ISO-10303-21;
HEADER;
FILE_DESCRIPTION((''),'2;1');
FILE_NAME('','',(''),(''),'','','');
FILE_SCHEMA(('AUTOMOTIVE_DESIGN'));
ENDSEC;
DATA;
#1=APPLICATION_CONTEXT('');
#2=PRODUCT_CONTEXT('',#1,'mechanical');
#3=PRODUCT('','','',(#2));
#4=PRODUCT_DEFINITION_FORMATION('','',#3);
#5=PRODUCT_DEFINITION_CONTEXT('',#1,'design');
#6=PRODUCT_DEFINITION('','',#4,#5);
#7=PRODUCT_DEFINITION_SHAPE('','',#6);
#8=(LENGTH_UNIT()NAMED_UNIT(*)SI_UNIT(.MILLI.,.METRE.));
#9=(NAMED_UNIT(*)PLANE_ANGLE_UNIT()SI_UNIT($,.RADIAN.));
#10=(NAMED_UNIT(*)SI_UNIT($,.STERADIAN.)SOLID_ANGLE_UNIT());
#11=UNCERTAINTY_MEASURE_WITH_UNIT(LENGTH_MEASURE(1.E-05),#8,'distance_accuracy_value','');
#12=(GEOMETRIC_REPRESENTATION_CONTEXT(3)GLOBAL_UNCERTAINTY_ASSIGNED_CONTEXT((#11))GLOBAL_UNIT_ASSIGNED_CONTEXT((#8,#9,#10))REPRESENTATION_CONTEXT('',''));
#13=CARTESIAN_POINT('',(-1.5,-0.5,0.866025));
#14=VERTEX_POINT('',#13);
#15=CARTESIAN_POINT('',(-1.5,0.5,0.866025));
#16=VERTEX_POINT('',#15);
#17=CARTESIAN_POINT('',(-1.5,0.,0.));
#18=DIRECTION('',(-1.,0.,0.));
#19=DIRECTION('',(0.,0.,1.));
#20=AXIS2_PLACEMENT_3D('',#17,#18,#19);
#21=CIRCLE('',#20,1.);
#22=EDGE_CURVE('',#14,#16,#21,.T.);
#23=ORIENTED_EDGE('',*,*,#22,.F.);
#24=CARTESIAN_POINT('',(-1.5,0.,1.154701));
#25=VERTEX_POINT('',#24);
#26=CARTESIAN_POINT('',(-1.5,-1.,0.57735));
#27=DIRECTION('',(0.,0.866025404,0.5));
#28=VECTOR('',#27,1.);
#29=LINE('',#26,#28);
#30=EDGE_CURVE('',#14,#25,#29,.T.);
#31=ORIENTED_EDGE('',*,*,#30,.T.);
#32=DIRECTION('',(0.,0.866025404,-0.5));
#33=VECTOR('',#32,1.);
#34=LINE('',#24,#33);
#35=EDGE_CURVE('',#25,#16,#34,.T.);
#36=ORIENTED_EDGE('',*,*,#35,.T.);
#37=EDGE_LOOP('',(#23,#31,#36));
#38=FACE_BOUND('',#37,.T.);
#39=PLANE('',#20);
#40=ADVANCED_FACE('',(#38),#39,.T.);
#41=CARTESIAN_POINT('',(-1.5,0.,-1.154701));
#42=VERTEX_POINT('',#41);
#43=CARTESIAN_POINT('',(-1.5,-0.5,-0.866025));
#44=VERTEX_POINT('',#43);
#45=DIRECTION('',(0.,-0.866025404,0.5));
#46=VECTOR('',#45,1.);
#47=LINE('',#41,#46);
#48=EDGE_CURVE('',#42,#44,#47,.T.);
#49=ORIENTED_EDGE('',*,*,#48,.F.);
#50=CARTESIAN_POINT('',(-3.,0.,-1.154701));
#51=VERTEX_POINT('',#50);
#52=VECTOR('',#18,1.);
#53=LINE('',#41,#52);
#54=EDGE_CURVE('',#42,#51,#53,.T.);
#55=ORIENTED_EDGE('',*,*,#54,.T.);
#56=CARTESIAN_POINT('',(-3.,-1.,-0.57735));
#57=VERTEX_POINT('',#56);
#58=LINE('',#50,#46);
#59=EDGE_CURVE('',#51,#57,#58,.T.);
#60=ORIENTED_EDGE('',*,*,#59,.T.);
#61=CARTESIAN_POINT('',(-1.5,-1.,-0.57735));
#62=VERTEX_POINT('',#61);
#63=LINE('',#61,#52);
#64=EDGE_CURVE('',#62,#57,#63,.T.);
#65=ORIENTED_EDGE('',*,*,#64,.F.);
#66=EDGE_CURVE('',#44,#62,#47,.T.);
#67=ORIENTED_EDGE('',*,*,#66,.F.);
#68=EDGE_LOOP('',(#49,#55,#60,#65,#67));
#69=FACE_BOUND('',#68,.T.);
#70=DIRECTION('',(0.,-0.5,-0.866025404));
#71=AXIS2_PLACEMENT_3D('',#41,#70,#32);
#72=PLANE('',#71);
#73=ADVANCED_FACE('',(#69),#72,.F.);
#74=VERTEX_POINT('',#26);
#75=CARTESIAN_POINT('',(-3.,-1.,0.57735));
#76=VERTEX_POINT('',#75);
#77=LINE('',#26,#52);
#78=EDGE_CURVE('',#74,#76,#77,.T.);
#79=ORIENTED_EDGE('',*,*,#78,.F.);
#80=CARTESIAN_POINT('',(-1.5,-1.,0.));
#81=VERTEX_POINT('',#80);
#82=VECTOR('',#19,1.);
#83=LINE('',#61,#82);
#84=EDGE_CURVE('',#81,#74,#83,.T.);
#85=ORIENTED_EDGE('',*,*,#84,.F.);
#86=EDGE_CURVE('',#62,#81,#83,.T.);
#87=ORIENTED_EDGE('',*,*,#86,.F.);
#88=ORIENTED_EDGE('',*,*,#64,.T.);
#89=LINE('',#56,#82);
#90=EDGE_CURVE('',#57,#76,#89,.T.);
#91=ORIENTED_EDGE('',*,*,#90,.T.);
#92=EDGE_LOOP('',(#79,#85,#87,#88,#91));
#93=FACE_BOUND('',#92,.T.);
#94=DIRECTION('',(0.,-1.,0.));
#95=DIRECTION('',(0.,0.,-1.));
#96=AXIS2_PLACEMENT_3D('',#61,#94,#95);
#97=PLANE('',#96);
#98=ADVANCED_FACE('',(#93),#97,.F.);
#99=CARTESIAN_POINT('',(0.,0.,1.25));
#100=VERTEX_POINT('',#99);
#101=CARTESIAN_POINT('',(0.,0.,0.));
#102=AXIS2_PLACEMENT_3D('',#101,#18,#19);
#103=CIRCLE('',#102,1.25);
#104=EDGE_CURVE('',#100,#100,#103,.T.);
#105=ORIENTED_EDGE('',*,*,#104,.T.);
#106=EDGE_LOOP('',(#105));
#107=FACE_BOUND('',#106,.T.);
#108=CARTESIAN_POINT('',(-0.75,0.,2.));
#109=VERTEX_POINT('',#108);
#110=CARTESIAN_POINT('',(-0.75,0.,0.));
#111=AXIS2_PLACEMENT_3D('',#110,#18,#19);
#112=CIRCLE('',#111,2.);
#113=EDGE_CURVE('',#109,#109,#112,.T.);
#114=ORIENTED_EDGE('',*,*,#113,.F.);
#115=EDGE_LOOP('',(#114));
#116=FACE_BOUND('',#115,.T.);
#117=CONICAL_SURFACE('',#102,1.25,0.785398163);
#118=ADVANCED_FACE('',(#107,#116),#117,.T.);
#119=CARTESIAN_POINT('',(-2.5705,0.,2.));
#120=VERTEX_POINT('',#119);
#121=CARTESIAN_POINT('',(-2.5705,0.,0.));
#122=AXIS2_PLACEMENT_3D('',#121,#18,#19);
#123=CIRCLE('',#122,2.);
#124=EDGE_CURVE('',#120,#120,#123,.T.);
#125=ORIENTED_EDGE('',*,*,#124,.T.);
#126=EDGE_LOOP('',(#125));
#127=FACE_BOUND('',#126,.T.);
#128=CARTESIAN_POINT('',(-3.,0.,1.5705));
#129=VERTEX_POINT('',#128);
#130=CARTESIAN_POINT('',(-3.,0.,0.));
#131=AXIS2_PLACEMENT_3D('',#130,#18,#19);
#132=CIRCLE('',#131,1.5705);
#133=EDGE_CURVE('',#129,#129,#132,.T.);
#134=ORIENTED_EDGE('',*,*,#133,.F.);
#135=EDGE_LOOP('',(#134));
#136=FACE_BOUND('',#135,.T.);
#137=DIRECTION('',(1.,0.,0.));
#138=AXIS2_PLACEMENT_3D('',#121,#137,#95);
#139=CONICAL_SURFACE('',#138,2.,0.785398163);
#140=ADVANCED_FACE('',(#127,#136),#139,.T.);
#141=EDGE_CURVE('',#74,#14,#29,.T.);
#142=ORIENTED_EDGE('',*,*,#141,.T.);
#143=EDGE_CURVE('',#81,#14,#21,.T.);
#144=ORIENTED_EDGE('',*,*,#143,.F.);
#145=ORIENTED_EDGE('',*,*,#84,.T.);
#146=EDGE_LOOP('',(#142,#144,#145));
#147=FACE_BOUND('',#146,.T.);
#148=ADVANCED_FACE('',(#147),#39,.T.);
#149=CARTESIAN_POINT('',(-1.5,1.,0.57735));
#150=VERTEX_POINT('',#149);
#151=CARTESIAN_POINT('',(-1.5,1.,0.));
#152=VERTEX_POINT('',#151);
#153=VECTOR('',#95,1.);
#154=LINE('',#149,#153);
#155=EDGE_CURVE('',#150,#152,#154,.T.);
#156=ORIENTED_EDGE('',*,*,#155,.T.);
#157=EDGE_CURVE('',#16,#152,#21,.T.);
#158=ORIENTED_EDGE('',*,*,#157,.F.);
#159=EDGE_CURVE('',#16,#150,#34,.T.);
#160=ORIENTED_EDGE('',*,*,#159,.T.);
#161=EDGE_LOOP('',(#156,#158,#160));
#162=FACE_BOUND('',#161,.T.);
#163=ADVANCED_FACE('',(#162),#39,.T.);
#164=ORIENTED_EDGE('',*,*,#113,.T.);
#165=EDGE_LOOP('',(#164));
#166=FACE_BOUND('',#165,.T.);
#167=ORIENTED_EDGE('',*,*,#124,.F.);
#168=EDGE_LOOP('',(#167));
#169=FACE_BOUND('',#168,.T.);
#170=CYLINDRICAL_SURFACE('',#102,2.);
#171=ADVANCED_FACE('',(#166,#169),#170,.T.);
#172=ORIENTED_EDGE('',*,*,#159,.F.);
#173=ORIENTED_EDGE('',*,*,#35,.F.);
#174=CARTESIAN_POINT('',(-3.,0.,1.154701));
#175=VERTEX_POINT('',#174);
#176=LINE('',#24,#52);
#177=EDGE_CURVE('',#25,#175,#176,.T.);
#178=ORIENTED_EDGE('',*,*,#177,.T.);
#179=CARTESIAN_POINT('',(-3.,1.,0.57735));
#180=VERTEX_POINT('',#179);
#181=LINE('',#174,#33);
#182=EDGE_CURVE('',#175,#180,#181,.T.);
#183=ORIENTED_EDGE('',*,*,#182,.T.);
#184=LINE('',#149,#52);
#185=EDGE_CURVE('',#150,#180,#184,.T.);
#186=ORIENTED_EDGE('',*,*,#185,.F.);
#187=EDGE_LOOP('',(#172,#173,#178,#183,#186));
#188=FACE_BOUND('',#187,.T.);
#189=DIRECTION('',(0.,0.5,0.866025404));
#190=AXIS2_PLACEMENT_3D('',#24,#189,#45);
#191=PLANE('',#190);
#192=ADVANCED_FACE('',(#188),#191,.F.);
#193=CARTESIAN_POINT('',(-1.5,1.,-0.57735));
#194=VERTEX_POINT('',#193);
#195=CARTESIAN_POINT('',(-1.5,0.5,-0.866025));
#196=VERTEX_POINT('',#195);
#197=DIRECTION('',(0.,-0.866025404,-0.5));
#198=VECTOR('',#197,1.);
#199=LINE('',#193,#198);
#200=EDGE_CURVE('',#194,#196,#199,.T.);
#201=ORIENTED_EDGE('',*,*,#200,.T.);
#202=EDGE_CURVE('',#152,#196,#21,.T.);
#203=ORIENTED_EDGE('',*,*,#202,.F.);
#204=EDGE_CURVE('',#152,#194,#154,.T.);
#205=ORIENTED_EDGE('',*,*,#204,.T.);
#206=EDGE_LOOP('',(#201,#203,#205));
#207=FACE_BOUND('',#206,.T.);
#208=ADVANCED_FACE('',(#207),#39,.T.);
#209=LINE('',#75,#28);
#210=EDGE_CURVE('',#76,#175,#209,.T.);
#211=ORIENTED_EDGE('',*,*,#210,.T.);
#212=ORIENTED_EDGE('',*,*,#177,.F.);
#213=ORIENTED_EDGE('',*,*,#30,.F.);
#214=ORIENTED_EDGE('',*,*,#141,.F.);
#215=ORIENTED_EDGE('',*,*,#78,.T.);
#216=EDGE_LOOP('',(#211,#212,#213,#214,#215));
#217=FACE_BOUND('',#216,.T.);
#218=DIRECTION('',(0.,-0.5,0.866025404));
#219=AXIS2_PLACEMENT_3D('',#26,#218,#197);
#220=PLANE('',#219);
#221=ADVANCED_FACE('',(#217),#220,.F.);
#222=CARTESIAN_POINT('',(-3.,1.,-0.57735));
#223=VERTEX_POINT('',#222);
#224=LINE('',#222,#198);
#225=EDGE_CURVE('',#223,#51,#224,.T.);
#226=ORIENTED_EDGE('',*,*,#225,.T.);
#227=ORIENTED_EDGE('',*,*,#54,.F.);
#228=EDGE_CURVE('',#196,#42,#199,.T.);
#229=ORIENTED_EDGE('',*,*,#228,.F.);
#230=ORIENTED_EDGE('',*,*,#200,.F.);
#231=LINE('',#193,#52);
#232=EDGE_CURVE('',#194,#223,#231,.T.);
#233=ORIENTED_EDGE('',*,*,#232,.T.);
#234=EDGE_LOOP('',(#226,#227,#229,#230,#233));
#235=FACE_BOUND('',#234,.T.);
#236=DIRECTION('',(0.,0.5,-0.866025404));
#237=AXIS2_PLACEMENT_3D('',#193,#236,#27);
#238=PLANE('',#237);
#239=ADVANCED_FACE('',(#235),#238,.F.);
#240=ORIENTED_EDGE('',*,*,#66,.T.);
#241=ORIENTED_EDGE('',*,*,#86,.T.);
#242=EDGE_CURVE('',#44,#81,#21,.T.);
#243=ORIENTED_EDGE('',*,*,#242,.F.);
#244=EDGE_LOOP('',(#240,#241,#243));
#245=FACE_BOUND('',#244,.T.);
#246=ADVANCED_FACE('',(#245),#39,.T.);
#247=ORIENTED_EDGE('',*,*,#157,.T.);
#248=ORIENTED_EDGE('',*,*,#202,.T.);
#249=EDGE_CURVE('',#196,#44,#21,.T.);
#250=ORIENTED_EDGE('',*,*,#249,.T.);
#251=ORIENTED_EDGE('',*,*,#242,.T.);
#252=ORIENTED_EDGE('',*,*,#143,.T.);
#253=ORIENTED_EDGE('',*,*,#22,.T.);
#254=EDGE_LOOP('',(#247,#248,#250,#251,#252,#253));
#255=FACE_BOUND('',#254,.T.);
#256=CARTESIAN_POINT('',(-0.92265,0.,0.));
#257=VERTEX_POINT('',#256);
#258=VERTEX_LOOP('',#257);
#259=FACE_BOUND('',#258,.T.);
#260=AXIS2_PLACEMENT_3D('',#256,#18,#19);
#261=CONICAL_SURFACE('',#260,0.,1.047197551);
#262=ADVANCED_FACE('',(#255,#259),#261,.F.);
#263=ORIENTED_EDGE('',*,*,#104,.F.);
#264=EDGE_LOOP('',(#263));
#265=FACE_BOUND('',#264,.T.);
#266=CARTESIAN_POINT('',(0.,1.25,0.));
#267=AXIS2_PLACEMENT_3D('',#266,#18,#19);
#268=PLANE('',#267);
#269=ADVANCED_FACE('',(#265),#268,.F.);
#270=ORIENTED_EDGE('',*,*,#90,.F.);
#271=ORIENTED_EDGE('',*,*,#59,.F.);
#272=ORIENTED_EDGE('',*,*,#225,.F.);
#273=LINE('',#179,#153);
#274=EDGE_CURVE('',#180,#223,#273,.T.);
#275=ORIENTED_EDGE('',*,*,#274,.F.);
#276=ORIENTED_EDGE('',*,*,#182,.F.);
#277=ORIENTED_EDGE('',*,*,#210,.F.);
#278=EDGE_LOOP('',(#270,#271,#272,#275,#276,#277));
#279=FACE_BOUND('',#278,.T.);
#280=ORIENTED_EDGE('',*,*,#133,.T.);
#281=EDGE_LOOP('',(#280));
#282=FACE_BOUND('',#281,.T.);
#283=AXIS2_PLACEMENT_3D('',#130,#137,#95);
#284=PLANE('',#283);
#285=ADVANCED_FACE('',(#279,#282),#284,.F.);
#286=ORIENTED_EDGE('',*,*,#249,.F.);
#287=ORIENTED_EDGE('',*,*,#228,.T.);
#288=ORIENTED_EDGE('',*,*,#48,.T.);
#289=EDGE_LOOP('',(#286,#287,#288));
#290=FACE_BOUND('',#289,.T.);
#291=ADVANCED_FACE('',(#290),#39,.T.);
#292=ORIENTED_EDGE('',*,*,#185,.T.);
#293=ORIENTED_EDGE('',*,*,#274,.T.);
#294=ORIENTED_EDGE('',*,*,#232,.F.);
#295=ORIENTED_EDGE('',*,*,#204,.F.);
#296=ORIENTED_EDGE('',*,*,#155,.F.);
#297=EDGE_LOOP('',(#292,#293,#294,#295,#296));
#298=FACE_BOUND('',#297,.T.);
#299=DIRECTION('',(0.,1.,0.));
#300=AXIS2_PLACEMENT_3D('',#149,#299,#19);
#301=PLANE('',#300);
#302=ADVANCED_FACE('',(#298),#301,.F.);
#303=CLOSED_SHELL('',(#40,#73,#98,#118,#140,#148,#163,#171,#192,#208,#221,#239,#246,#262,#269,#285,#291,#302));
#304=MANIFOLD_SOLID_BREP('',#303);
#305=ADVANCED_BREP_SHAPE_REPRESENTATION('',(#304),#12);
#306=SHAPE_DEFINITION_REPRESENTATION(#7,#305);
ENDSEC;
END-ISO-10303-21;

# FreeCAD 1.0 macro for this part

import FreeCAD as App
import Part
import Sketcher

V = App.Vector
Q = App.Units.Quantity


def add_polygon(sketch, points):
    """Adds a closed chain of lines whose ends are joined by coincident constraints."""
    first, n = sketch.GeometryCount, len(points)
    for a, b in zip(points, points[1:] + points[:1]):
        sketch.addGeometry(Part.LineSegment(App.Vector(*a, 0), App.Vector(*b, 0)), False)
    for i in range(n):
        sketch.addConstraint(Sketcher.Constraint("Coincident", first + i, 2, first + (i + 1) % n, 1))

doc = App.newDocument("Part")
body = doc.addObject("PartDesign::Body", "Body")

sketch1 = body.newObject("Sketcher::SketchObject", "Sketch")
sketch1.AttachmentSupport = (doc.getObject("XY_Plane"), [""])
sketch1.MapMode = "FlatFace"
add_polygon(sketch1, [(-3, 1.5705), (-3, 0), (0, 0), (0, 1.25), (-0.75, 2), (-2.5705, 2)])
sketch1.addConstraint(Sketcher.Constraint("Vertical", 0))
sketch1.addConstraint(Sketcher.Constraint("Horizontal", 1))
sketch1.addConstraint(Sketcher.Constraint("Vertical", 2))
sketch1.addConstraint(Sketcher.Constraint("Horizontal", 4))
sketch1.addConstraint(Sketcher.Constraint("Coincident", 1, 2, -1, 1))
sketch1.addConstraint(Sketcher.Constraint("Perpendicular", 3, 5))
sketch1.addConstraint(Sketcher.Constraint("DistanceX", 1, 1, 1, 2, Q("3 mm")))
sketch1.addConstraint(Sketcher.Constraint("Angle", 3, Q("135 deg")))
sketch1.addConstraint(Sketcher.Constraint("DistanceY", -1, 1, 3, 2, Q("2 mm")))
sketch1.addConstraint(Sketcher.Constraint("DistanceY", 2, 1, 2, 2, Q("1.25 mm")))
sketch1.addConstraint(Sketcher.Constraint("DistanceX", 4, 2, 4, 1, Q("1.8205 mm")))
revolution = body.newObject("PartDesign::Revolution", "Revolution")
revolution.Profile = sketch1
revolution.ReferenceAxis = (sketch1, ["H_Axis"])
revolution.Angle = 360

sketch2 = body.newObject("Sketcher::SketchObject", "Sketch001")
sketch2.AttachmentSupport = (doc.getObject("YZ_Plane"), [""])
sketch2.MapMode = "FlatFace"
sketch2.AttachmentOffset = App.Placement(V(0, 0, -3), App.Rotation())
add_polygon(sketch2, [(-1, 0.57735), (0, 1.154701), (1, 0.57735), (1, -0.57735), (0, -1.154701), (-1, -0.57735)])
sketch2.addConstraint(Sketcher.Constraint("Vertical", 2))
sketch2.addConstraint(Sketcher.Constraint("Vertical", 5))
sketch2.addConstraint(Sketcher.Constraint("Symmetric", 0, 2, 3, 2, -1, 1))
sketch2.addConstraint(Sketcher.Constraint("Symmetric", 1, 2, 4, 2, -1, 1))
sketch2.addConstraint(Sketcher.Constraint("PointOnObject", 0, 2, -2))
sketch2.addConstraint(Sketcher.Constraint("Parallel", 0, 3))
sketch2.addConstraint(Sketcher.Constraint("Horizontal", 2, 2, 4, 2))
sketch2.addConstraint(Sketcher.Constraint("Angle", 0, Q("30 deg")))
sketch2.addConstraint(Sketcher.Constraint("DistanceX", -1, 1, 1, 2, Q("1 mm")))
sketch2.addConstraint(Sketcher.Constraint("DistanceY", 2, 2, 2, 1, Q("1.154701 mm")))
pocket1 = body.newObject("PartDesign::Pocket", "Pocket")
pocket1.Profile = sketch2
pocket1.Length = 1.5
pocket1.Reversed = True

sketch3 = body.newObject("Sketcher::SketchObject", "Sketch002")
sketch3.AttachmentSupport = (doc.getObject("XY_Plane"), [""])
sketch3.MapMode = "FlatFace"
add_polygon(sketch3, [(-1.5, 1), (-1.5, 0), (-0.92265, 0)])
sketch3.addConstraint(Sketcher.Constraint("Vertical", 0))
sketch3.addConstraint(Sketcher.Constraint("Horizontal", 1))
sketch3.addConstraint(Sketcher.Constraint("PointOnObject", 0, 2, -1))
sketch3.addConstraint(Sketcher.Constraint("DistanceY", 0, 2, 0, 1, Q("1 mm")))
sketch3.addConstraint(Sketcher.Constraint("Angle", 2, Q("120 deg")))
sketch3.addConstraint(Sketcher.Constraint("DistanceX", 0, 2, -1, 1, Q("1.5 mm")))
groove = body.newObject("PartDesign::Groove", "Groove")
groove.Profile = sketch3
groove.ReferenceAxis = (sketch3, ["H_Axis"])
groove.Angle = 360

doc.recompute()
